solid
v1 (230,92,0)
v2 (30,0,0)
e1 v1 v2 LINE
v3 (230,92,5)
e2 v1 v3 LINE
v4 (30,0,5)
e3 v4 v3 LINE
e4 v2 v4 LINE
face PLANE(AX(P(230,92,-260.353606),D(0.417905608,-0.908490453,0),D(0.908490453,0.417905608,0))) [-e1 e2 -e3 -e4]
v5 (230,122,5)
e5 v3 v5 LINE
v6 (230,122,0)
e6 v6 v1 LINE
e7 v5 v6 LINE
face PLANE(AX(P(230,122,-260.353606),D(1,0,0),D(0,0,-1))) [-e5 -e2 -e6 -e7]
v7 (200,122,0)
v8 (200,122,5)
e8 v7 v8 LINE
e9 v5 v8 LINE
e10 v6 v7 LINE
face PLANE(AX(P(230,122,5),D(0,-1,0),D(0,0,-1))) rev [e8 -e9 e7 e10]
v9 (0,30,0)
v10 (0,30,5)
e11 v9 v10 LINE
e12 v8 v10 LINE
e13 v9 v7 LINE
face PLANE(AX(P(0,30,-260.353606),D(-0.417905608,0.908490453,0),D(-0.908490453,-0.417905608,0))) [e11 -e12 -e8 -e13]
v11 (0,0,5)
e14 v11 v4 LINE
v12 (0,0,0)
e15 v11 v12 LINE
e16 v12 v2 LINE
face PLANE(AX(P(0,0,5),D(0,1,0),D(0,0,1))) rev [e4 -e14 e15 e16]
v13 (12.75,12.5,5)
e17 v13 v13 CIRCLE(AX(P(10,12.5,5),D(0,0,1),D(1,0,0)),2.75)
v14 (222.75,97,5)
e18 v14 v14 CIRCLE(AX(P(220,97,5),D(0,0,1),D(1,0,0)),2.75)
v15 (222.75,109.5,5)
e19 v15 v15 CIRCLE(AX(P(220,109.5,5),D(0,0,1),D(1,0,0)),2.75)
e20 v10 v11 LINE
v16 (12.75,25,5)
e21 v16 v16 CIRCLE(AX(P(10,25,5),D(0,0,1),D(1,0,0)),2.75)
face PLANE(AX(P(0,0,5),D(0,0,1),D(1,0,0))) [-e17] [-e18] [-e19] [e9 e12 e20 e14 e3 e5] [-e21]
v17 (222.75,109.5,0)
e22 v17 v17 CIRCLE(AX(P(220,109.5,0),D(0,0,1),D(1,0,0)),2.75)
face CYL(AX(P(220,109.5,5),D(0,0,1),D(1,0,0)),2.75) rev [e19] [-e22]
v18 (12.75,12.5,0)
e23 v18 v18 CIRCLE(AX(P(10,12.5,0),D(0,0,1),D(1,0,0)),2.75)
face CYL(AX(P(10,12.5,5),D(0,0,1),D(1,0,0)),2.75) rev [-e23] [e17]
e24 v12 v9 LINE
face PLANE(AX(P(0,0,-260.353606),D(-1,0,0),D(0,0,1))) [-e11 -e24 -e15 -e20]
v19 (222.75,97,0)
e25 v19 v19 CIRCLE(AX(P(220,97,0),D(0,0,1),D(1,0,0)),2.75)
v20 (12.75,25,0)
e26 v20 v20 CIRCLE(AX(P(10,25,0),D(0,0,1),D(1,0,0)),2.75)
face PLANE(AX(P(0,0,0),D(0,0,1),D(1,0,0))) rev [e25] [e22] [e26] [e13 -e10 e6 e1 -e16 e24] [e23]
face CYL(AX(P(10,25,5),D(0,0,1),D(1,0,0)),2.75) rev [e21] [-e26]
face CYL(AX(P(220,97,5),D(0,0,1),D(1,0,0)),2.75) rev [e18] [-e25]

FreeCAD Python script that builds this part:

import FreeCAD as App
import Part
import Sketcher
from FreeCAD import Vector
Q = App.Units.Quantity


def add_polygon(sketch, points):
    """Adds a closed chain of lines whose ends are joined by coincident constraints."""
    first, n = sketch.GeometryCount, len(points)
    for a, b in zip(points, points[1:] + points[:1]):
        sketch.addGeometry(Part.LineSegment(App.Vector(*a, 0), App.Vector(*b, 0)), False)
    for i in range(n):
        sketch.addConstraint(Sketcher.Constraint("Coincident", first + i, 2, first + (i + 1) % n, 1))

doc = App.newDocument("Part")
params = doc.addObject("Spreadsheet::Sheet", "Params")
for row, (alias, value) in enumerate([
    ("sketch1_width", "20 mm"),
    ("pad1_length", "5 mm"),
    ("sketch2_width", "30 mm"),
    ("pad2_length", "5 mm"),
    ("sketch3_diameter", "5.5 mm"),
    ("hole_diameter", "5.5 mm"),
], start=1):
    params.set(f"A{row}", alias)
    params.set(f"B{row}", "=" + value)
    params.setAlias(f"B{row}", alias)

body = doc.addObject("PartDesign::Body", "Body")

sketch1 = body.newObject("Sketcher::SketchObject", "Sketch")
sketch1.AttachmentSupport = (doc.getObject("XY_Plane"), [""])
sketch1.MapMode = "FlatFace"
add_polygon(sketch1, [(0, 0), (20, 0), (230, 122), (210, 122)])
sketch1.addConstraint(Sketcher.Constraint("Horizontal", 0))
sketch1.addConstraint(Sketcher.Constraint("Horizontal", 2))
sketch1.addConstraint(Sketcher.Constraint("Coincident", 3, 2, -1, 1))
sketch1.addConstraint(Sketcher.Constraint("Parallel", 1, 3))
sketch1.addConstraint(Sketcher.Constraint("DistanceX", 0, 1, 0, 2, Q("20 mm")))
sketch1.addConstraint(Sketcher.Constraint("DistanceX", -1, 1, 1, 2, Q("230 mm")))
sketch1.addConstraint(Sketcher.Constraint("DistanceY", -1, 1, 1, 2, Q("122 mm")))
sketch1.setExpression("Constraints[8]", "Params.sketch1_width")
pad1 = body.newObject("PartDesign::Pad", "Pad")
pad1.Profile = sketch1
pad1.setExpression("Length", "Params.pad1_length")

sketch2 = body.newObject("Sketcher::SketchObject", "Sketch001")
sketch2.AttachmentSupport = (doc.getObject("XY_Plane"), [""])
sketch2.MapMode = "FlatFace"
sketch2.AttachmentOffset = App.Placement(Vector(0, 0, 5), App.Rotation())
add_polygon(sketch2, [(0, 30), (0, 0), (30, 0), (230, 92), (230, 122), (200, 122)])
sketch2.addConstraint(Sketcher.Constraint("Vertical", 0))
sketch2.addConstraint(Sketcher.Constraint("Horizontal", 1))
sketch2.addConstraint(Sketcher.Constraint("Vertical", 3))
sketch2.addConstraint(Sketcher.Constraint("Horizontal", 4))
sketch2.addConstraint(Sketcher.Constraint("Coincident", 0, 2, -1, 1))
sketch2.addConstraint(Sketcher.Constraint("Parallel", 2, 5))
sketch2.addConstraint(Sketcher.Constraint("Equal", 1, 4))
sketch2.addConstraint(Sketcher.Constraint("Equal", 4, 0))
sketch2.addConstraint(Sketcher.Constraint("DistanceX", 1, 1, 1, 2, Q("30 mm")))
sketch2.addConstraint(Sketcher.Constraint("DistanceX", -1, 1, 2, 2, Q("230 mm")))
sketch2.addConstraint(Sketcher.Constraint("DistanceY", -1, 1, 2, 2, Q("92 mm")))
sketch2.setExpression("Constraints[14]", "Params.sketch2_width")
pad2 = body.newObject("PartDesign::Pad", "Pad001")
pad2.Profile = sketch2
pad2.setExpression("Length", "Params.pad2_length")
pad2.Reversed = True

sketch3 = body.newObject("Sketcher::SketchObject", "Sketch002")
sketch3.AttachmentSupport = (doc.getObject("XY_Plane"), [""])
sketch3.MapMode = "FlatFace"
sketch3.AttachmentOffset = App.Placement(Vector(0, 0, 5), App.Rotation())
sketch3.addGeometry(Part.Circle(Vector(10, 25, 0), Vector(0, 0, 1), 2.8), False)
sketch3.addGeometry(Part.Circle(Vector(220, 97, 0), Vector(0, 0, 1), 2.8), False)
sketch3.addGeometry(Part.Circle(Vector(10, 12.5, 0), Vector(0, 0, 1), 2.8), False)
sketch3.addGeometry(Part.Circle(Vector(220, 109.5, 0), Vector(0, 0, 1), 2.8), False)
sketch3.addConstraint(Sketcher.Constraint("Equal", 0, 1))
sketch3.addConstraint(Sketcher.Constraint("Equal", 1, 2))
sketch3.addConstraint(Sketcher.Constraint("Equal", 2, 3))
sketch3.addConstraint(Sketcher.Constraint("Vertical", 0, 3, 2, 3))
sketch3.addConstraint(Sketcher.Constraint("Vertical", 1, 3, 3, 3))
sketch3.addConstraint(Sketcher.Constraint("Diameter", 0, Q("5.5 mm")))
sketch3.addConstraint(Sketcher.Constraint("DistanceX", -1, 1, 0, 3, Q("10 mm")))
sketch3.addConstraint(Sketcher.Constraint("DistanceY", -1, 1, 0, 3, Q("25 mm")))
sketch3.addConstraint(Sketcher.Constraint("DistanceX", -1, 1, 1, 3, Q("220 mm")))
sketch3.addConstraint(Sketcher.Constraint("DistanceY", -1, 1, 1, 3, Q("97 mm")))
sketch3.addConstraint(Sketcher.Constraint("DistanceY", 2, 3, 3, 3, Q("97 mm")))
sketch3.addConstraint(Sketcher.Constraint("DistanceY", -1, 1, 2, 3, Q("12.5 mm")))
sketch3.setExpression("Constraints[5]", "Params.sketch3_diameter")
doc.recompute()
hole = body.newObject("PartDesign::Hole", "Hole")
hole.Profile = sketch3
hole.ThreadType = "None"
hole.setExpression("Diameter", "Params.hole_diameter")
hole.DepthType = "ThroughAll"

doc.recompute()
